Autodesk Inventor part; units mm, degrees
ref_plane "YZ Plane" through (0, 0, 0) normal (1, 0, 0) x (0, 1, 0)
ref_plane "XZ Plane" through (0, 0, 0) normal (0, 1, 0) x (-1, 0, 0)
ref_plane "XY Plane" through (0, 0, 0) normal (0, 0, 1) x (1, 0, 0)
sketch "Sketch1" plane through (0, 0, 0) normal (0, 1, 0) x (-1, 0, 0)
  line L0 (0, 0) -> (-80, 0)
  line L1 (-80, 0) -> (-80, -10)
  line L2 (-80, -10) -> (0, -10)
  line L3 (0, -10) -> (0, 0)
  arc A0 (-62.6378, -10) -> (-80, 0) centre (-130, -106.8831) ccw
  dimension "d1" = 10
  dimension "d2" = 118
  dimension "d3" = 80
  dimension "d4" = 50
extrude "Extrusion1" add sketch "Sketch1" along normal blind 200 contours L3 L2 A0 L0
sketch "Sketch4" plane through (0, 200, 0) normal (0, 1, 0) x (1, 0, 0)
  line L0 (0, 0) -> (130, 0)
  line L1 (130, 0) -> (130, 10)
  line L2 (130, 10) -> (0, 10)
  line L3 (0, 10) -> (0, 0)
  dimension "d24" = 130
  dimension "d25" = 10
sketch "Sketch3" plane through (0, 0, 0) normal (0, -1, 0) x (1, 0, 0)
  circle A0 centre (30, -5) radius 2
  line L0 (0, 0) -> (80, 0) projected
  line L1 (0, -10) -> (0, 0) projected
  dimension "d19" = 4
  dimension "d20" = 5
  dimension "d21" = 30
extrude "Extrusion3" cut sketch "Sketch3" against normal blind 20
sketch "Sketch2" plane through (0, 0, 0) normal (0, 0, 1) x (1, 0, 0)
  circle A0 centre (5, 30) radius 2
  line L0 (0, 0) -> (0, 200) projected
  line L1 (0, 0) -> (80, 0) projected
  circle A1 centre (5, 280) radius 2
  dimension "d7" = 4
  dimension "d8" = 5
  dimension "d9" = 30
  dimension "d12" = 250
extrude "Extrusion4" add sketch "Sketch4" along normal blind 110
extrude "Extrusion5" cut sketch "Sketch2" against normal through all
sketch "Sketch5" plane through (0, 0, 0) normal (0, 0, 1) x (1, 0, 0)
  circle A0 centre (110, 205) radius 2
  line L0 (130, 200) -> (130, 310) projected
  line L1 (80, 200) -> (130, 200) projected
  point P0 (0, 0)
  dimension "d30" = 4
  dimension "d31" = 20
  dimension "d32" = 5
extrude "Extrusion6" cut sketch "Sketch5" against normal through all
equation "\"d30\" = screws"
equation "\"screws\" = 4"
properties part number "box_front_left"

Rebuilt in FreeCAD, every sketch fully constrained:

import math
import FreeCAD as App
import Part
import Sketcher

V = App.Vector


def add_polygon(sketch, points):
    """Adds a closed chain of lines whose ends are joined by coincident constraints."""
    first, n = sketch.GeometryCount, len(points)
    for a, b in zip(points, points[1:] + points[:1]):
        sketch.addGeometry(Part.LineSegment(App.Vector(*a, 0), App.Vector(*b, 0)), False)
    for i in range(n):
        sketch.addConstraint(Sketcher.Constraint("Coincident", first + i, 2, first + (i + 1) % n, 1))

doc = App.newDocument("Part")
params = doc.addObject("Spreadsheet::Sheet", "Params")
for row, (alias, value) in enumerate([
    ("sketch1_width", "80 mm"),
    ("sketch1_height", "10 mm"),
    ("pad1_length", "200 mm"),
    ("sketch2_diameter", "4 mm"),
    ("pocket1_length", "20 mm"),
    ("sketch3_width", "130 mm"),
    ("sketch3_height", "10 mm"),
    ("pad2_length", "110 mm"),
    ("sketch4_diameter", "4 mm"),
    ("sketch5_diameter", "4 mm"),
], start=1):
    params.set(f"A{row}", alias)
    params.set(f"B{row}", "=" + value)
    params.setAlias(f"B{row}", alias)

body = doc.addObject("PartDesign::Body", "Body")

sketch1 = doc.addObject("Sketcher::SketchObject", "Sketch")
body.addObject(sketch1)
sketch1.AttachmentSupport = (doc.XZ_Plane, [""])
sketch1.MapMode = "FlatFace"
sketch1.addGeometry([
    Part.LineSegment(V(0, -10, 0), V(0, 0, 0)),
    Part.LineSegment(V(0, 0, 0), V(80, 0, 0)),
    Part.ArcOfCircle(Part.Circle(V(130, -107, 0), V(0, 0, 1), 118), math.radians(115.07), math.radians(124.81)),
    Part.LineSegment(V(63, -10, 0), V(0, -10, 0)),
], False)
sketch1.addConstraint([
    Sketcher.Constraint("Coincident", 0, 2, 1, 1),
    Sketcher.Constraint("Coincident", 1, 2, 2, 1),
    Sketcher.Constraint("Coincident", 2, 2, 3, 1),
    Sketcher.Constraint("Coincident", 3, 2, 0, 1),
    Sketcher.Constraint("Vertical", 0),
    Sketcher.Constraint("Horizontal", 1),
    Sketcher.Constraint("Horizontal", 3),
    Sketcher.Constraint("Coincident", 0, 2, -1, 1),
    Sketcher.Constraint("DistanceX", 1, 1, 1, 2, 80.0),
    Sketcher.Constraint("DistanceY", 0, 1, 0, 2, 10.0),
    Sketcher.Constraint("Radius", 2, 117.9977),
    Sketcher.Constraint("DistanceX", 3, 2, 3, 1, 62.6378),
])
sketch1.setExpression("Constraints[8]", "Params.sketch1_width")
sketch1.setExpression("Constraints[9]", "Params.sketch1_height")
pad1 = doc.addObject("PartDesign::Pad", "Pad")
body.addObject(pad1)
pad1.Profile = sketch1
pad1.setExpression("Length", "Params.pad1_length")
pad1.Reversed = True

sketch2 = doc.addObject("Sketcher::SketchObject", "Sketch001")
body.addObject(sketch2)
sketch2.AttachmentSupport = (doc.XZ_Plane, [""])
sketch2.MapMode = "FlatFace"
sketch2.addGeometry(Part.Circle(V(30, -5, 0), V(0, 0, 1), 2), False)
sketch2.addConstraint([
    Sketcher.Constraint("Diameter", 0, 4.0),
    Sketcher.Constraint("DistanceX", -1, 1, 0, 3, 30.0),
    Sketcher.Constraint("DistanceY", 0, 3, -1, 1, 5.0),
])
sketch2.setExpression("Constraints[0]", "Params.sketch2_diameter")
pocket1 = doc.addObject("PartDesign::Pocket", "Pocket")
body.addObject(pocket1)
pocket1.Profile = sketch2
pocket1.setExpression("Length", "Params.pocket1_length")

sketch3 = doc.addObject("Sketcher::SketchObject", "Sketch002")
body.addObject(sketch3)
sketch3.AttachmentSupport = (doc.XZ_Plane, [""])
sketch3.MapMode = "FlatFace"
sketch3.AttachmentOffset = App.Placement(V(0, 0, -200), App.Rotation())
add_polygon(sketch3, [(0, -10), (0, 0), (130, 0), (130, -10)])
sketch3.addConstraint([
    Sketcher.Constraint("Vertical", 0),
    Sketcher.Constraint("Horizontal", 1),
    Sketcher.Constraint("Vertical", 2),
    Sketcher.Constraint("Horizontal", 3),
    Sketcher.Constraint("Coincident", 0, 2, -1, 1),
    Sketcher.Constraint("DistanceX", 1, 1, 1, 2, 130.0),
    Sketcher.Constraint("DistanceY", 0, 1, 0, 2, 10.0),
])
sketch3.setExpression("Constraints[9]", "Params.sketch3_width")
sketch3.setExpression("Constraints[10]", "Params.sketch3_height")
pad2 = doc.addObject("PartDesign::Pad", "Pad001")
body.addObject(pad2)
pad2.Profile = sketch3
pad2.setExpression("Length", "Params.pad2_length")
pad2.Reversed = True

sketch4 = doc.addObject("Sketcher::SketchObject", "Sketch003")
body.addObject(sketch4)
sketch4.AttachmentSupport = (doc.XY_Plane, [""])
sketch4.MapMode = "FlatFace"
sketch4.addGeometry([
    Part.Circle(V(5, 30, 0), V(0, 0, 1), 2),
    Part.Circle(V(5, 280, 0), V(0, 0, 1), 2),
], False)
sketch4.addConstraint([
    Sketcher.Constraint("Equal", 0, 1),
    Sketcher.Constraint("Vertical", 0, 3, 1, 3),
    Sketcher.Constraint("Diameter", 0, 4.0),
    Sketcher.Constraint("DistanceX", -1, 1, 0, 3, 5.0),
    Sketcher.Constraint("DistanceY", -1, 1, 0, 3, 30.0),
    Sketcher.Constraint("DistanceY", 0, 3, 1, 3, 250.0),
])
sketch4.setExpression("Constraints[2]", "Params.sketch4_diameter")
pocket2 = doc.addObject("PartDesign::Pocket", "Pocket001")
body.addObject(pocket2)
pocket2.Profile = sketch4
pocket2.Type = "ThroughAll"

sketch5 = doc.addObject("Sketcher::SketchObject", "Sketch004")
body.addObject(sketch5)
sketch5.AttachmentSupport = (doc.XY_Plane, [""])
sketch5.MapMode = "FlatFace"
sketch5.addGeometry(Part.Circle(V(110, 205, 0), V(0, 0, 1), 2), False)
sketch5.addConstraint([
    Sketcher.Constraint("Diameter", 0, 4.0),
    Sketcher.Constraint("DistanceX", -1, 1, 0, 3, 110.0),
    Sketcher.Constraint("DistanceY", -1, 1, 0, 3, 205.0),
])
sketch5.setExpression("Constraints[0]", "Params.sketch5_diameter")
pocket3 = doc.addObject("PartDesign::Pocket", "Pocket002")
body.addObject(pocket3)
pocket3.Profile = sketch5
pocket3.Type = "ThroughAll"

doc.recompute()
